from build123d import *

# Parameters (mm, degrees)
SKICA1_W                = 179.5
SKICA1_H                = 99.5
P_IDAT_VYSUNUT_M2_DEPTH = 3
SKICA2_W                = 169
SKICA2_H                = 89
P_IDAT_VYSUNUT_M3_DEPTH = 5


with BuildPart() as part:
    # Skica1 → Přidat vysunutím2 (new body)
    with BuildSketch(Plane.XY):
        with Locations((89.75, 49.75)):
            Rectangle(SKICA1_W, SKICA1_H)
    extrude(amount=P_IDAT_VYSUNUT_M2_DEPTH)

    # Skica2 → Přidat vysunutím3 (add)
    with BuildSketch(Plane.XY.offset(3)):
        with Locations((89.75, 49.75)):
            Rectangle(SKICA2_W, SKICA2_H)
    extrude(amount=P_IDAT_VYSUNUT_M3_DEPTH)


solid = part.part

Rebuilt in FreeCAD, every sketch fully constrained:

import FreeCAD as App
import Part
import Sketcher
from FreeCAD import Vector
Q = App.Units.Quantity

doc = App.newDocument("Part")
body = doc.addObject("PartDesign::Body", "Body")

# Sketch on XY plane
sketch1 = body.newObject("Sketcher::SketchObject", "Sketch")
sketch1.AttachmentSupport = (doc.getObject("XY_Plane"), [""])
sketch1.MapMode = "FlatFace"
sketch1.addGeometry([
    Part.LineSegment(Vector(0, 100, 0), Vector(0, 0, 0)),
    Part.LineSegment(Vector(0, 0, 0), Vector(180, 0, 0)),
    Part.LineSegment(Vector(180, 0, 0), Vector(180, 100, 0)),
    Part.LineSegment(Vector(180, 100, 0), Vector(0, 100, 0)),
], False)
sketch1.addConstraint([
    Sketcher.Constraint("Coincident", 0, 2, 1, 1),
    Sketcher.Constraint("Coincident", 1, 2, 2, 1),
    Sketcher.Constraint("Coincident", 2, 2, 3, 1),
    Sketcher.Constraint("Coincident", 3, 2, 0, 1),
    Sketcher.Constraint("Vertical", 0),
    Sketcher.Constraint("Horizontal", 1),
    Sketcher.Constraint("Vertical", 2),
    Sketcher.Constraint("Horizontal", 3),
    Sketcher.Constraint("Coincident", 0, 2, -1, 1),
    Sketcher.Constraint("DistanceX", 1, 1, 1, 2, Q("179.5 mm")),
    Sketcher.Constraint("DistanceY", 0, 2, 0, 1, Q("99.5 mm")),
])
pad1 = body.newObject("PartDesign::Pad", "Pad")
pad1.Profile = sketch1
pad1.Length = 3

# Sketch on XY plane
sketch2 = body.newObject("Sketcher::SketchObject", "Sketch001")
sketch2.AttachmentSupport = (doc.getObject("XY_Plane"), [""])
sketch2.MapMode = "FlatFace"
sketch2.AttachmentOffset = App.Placement(Vector(0, 0, 3), App.Rotation())
sketch2.addGeometry([
    Part.LineSegment(Vector(5, 94, 0), Vector(5, 5, 0)),
    Part.LineSegment(Vector(5, 5, 0), Vector(174, 5, 0)),
    Part.LineSegment(Vector(174, 5, 0), Vector(174, 94, 0)),
    Part.LineSegment(Vector(174, 94, 0), Vector(5, 94, 0)),
], False)
sketch2.addConstraint([
    Sketcher.Constraint("Coincident", 0, 2, 1, 1),
    Sketcher.Constraint("Coincident", 1, 2, 2, 1),
    Sketcher.Constraint("Coincident", 2, 2, 3, 1),
    Sketcher.Constraint("Coincident", 3, 2, 0, 1),
    Sketcher.Constraint("Vertical", 0),
    Sketcher.Constraint("Horizontal", 1),
    Sketcher.Constraint("Vertical", 2),
    Sketcher.Constraint("Horizontal", 3),
    Sketcher.Constraint("DistanceX", 1, 1, 1, 2, Q("169 mm")),
    Sketcher.Constraint("DistanceY", 0, 2, 0, 1, Q("89 mm")),
    Sketcher.Constraint("DistanceX", -1, 1, 0, 2, Q("5.25 mm")),
    Sketcher.Constraint("DistanceY", -1, 1, 0, 2, Q("5.25 mm")),
])
pad2 = body.newObject("PartDesign::Pad", "Pad001")
pad2.Profile = sketch2
pad2.Length = 5

doc.recompute()
